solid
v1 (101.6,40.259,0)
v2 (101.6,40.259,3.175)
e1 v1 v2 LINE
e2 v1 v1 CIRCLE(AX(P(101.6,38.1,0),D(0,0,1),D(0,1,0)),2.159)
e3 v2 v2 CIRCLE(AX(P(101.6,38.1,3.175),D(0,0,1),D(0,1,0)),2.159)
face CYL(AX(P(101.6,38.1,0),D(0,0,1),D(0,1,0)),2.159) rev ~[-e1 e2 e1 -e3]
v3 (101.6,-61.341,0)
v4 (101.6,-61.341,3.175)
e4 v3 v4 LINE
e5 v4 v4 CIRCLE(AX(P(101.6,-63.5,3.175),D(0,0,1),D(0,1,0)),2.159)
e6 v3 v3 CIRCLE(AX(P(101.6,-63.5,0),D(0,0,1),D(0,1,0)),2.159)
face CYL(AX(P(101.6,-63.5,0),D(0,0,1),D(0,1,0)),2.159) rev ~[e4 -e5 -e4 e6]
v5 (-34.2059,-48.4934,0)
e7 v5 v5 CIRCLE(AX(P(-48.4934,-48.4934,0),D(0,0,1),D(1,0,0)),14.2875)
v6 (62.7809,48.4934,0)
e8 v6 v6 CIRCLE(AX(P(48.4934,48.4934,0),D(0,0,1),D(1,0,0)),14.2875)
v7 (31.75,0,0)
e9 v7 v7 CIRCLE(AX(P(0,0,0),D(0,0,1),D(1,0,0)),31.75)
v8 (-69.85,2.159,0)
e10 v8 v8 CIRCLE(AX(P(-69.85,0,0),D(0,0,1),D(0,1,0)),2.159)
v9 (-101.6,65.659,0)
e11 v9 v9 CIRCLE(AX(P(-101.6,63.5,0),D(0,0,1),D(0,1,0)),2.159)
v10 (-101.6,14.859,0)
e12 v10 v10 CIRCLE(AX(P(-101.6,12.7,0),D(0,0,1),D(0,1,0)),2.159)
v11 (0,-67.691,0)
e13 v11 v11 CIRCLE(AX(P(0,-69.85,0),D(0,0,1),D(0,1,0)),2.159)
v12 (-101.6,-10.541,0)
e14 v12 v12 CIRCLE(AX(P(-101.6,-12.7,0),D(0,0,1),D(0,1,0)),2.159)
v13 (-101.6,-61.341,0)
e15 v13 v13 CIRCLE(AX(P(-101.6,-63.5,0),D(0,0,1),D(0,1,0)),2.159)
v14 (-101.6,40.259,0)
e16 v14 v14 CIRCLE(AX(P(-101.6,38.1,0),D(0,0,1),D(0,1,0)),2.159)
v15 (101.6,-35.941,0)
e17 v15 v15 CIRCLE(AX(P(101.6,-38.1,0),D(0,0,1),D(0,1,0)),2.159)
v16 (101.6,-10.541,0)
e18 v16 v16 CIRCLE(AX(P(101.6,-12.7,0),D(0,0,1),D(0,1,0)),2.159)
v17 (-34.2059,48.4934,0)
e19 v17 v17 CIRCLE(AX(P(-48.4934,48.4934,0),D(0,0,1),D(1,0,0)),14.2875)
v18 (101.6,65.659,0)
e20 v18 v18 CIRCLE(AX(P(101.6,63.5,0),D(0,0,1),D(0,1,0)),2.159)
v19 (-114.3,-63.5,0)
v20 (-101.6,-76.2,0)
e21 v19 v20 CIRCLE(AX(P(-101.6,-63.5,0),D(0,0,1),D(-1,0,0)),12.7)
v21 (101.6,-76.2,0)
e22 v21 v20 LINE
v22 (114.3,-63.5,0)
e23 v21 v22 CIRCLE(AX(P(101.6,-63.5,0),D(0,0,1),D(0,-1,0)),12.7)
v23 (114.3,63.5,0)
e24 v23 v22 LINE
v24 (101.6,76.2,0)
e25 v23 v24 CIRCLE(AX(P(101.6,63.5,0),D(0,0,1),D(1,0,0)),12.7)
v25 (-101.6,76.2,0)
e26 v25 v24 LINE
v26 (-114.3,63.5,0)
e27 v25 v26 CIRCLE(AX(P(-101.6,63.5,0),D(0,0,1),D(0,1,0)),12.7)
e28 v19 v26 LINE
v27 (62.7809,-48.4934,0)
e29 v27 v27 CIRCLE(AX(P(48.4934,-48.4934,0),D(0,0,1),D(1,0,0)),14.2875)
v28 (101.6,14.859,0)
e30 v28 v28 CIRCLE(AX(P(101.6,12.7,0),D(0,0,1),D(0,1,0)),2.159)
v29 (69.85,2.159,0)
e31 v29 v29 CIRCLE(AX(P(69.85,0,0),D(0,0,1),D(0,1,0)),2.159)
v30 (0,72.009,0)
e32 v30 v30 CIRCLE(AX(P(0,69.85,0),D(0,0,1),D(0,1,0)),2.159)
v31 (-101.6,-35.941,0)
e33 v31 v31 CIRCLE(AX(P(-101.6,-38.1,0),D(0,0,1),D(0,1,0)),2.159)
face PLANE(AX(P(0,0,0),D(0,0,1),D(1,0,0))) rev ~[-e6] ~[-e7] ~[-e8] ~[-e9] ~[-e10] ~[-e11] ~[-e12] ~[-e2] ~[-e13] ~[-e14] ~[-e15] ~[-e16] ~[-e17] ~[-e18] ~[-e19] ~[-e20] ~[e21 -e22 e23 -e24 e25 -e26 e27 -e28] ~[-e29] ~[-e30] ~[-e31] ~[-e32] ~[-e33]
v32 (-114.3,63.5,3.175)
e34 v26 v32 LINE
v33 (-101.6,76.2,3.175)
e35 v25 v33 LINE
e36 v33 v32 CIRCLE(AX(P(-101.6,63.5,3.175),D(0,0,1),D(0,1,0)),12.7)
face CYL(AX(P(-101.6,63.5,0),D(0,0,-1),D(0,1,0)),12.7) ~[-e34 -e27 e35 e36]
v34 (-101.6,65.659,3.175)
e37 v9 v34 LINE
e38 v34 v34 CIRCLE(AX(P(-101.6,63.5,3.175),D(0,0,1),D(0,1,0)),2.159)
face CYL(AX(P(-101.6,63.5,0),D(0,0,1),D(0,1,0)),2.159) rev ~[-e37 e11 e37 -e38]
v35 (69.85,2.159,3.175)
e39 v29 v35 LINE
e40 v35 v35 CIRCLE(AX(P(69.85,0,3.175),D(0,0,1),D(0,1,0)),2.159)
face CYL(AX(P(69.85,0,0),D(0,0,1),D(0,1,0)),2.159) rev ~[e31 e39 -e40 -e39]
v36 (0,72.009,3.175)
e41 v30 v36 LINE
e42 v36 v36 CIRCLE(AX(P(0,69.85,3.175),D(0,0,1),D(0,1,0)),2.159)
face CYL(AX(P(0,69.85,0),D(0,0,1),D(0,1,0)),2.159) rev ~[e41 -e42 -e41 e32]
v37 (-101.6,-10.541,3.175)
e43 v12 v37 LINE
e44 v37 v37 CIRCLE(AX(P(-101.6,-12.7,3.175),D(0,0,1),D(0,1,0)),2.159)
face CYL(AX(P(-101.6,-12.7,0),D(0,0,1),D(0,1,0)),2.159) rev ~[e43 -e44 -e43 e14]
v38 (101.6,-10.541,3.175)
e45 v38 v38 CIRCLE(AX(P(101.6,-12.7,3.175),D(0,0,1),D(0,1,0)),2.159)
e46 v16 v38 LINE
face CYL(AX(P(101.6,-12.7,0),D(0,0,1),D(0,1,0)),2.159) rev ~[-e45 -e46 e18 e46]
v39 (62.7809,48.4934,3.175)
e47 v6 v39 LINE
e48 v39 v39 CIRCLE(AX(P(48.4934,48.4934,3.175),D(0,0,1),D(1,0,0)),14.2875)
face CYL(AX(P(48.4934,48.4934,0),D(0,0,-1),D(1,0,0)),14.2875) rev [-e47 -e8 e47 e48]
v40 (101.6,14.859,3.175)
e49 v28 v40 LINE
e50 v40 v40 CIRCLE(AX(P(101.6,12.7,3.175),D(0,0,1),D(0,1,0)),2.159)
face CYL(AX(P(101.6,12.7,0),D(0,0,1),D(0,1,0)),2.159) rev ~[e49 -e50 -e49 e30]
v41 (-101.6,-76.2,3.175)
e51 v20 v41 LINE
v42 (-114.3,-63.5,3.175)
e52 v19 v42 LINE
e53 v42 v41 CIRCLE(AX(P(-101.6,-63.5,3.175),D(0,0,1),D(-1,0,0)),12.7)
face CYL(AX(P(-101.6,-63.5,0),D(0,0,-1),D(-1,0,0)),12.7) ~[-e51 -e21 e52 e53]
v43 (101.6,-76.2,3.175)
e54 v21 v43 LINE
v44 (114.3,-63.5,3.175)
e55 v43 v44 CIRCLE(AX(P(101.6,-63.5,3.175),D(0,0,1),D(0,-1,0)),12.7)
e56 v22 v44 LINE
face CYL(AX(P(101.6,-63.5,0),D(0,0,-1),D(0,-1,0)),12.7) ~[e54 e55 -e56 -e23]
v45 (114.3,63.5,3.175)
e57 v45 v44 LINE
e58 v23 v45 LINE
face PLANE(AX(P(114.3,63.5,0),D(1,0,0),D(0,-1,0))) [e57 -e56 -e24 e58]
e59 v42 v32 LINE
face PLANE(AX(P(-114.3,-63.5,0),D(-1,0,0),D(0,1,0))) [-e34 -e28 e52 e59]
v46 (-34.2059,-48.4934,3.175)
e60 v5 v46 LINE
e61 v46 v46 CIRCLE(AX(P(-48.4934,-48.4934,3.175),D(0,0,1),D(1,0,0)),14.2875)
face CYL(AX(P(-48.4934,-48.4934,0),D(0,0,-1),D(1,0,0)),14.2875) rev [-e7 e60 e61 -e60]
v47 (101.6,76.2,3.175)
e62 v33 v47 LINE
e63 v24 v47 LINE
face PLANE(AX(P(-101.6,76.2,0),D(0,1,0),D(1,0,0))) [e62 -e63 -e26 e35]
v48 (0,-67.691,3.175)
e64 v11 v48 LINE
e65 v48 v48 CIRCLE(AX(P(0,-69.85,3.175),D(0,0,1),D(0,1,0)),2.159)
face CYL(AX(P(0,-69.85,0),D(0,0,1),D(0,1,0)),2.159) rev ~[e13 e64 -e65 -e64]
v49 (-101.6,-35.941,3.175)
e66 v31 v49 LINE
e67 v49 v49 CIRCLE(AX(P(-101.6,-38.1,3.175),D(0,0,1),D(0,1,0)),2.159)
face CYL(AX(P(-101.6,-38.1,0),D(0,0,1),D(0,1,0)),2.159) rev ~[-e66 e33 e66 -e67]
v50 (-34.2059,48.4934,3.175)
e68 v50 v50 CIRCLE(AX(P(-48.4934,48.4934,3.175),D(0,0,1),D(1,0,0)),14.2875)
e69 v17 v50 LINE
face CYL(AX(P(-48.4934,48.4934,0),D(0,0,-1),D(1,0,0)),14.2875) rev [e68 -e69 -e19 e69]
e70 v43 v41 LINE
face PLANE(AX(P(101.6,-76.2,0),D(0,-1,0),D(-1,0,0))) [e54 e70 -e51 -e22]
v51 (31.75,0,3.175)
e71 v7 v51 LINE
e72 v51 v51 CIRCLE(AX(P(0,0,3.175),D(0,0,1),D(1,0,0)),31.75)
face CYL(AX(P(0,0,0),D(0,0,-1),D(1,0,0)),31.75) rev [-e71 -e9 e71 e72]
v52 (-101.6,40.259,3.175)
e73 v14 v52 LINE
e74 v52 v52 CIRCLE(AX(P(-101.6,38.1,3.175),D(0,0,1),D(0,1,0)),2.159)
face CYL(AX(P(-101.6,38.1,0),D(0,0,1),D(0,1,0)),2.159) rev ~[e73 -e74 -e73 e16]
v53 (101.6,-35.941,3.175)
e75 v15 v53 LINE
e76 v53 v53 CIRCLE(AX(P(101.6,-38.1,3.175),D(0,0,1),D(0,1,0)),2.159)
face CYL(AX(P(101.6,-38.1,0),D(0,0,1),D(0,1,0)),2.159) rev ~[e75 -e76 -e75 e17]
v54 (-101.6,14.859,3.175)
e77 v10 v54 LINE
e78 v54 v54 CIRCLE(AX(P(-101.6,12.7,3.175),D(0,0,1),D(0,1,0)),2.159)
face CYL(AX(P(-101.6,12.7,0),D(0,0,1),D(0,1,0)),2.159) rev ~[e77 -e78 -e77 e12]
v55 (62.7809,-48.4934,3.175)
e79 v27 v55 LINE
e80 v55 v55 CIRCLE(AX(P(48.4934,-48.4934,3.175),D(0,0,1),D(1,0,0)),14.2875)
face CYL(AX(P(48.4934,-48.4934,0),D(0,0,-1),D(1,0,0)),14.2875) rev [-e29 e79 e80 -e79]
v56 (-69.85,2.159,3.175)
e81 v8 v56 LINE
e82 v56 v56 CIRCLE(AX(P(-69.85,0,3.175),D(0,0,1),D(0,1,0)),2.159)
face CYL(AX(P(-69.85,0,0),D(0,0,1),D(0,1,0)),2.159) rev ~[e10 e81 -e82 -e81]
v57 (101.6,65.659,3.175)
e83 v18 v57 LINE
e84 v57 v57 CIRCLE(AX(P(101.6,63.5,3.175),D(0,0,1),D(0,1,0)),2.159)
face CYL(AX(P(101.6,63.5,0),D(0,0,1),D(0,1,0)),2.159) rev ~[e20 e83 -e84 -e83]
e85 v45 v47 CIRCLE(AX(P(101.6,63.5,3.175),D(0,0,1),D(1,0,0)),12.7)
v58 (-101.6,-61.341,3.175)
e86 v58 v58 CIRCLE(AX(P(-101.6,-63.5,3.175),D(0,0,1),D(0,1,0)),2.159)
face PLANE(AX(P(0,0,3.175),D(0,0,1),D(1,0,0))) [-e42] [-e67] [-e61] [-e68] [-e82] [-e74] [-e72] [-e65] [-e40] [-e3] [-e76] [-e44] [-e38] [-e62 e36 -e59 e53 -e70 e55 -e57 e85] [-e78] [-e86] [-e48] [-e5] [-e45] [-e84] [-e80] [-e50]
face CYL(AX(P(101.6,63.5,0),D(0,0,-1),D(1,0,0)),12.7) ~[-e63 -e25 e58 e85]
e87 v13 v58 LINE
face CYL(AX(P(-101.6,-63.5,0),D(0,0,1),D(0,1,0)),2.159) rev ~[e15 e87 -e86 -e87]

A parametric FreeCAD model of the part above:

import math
import FreeCAD as App
import Part
import Sketcher

V = App.Vector
Q = App.Units.Quantity

doc = App.newDocument("Part")
body = doc.addObject("PartDesign::Body", "Body")

# Sketch on XY plane
sketch1 = body.newObject("Sketcher::SketchObject", "Sketch")
sketch1.AttachmentSupport = (doc.getObject("XY_Plane"), [""])
sketch1.MapMode = "FlatFace"
sketch1.addGeometry([
    Part.LineSegment(V(101.6, 76.2, 0), V(-101.6, 76.2, 0)),  # 0
    Part.ArcOfCircle(Part.Circle(V(-101.6, 63.5, 0), V(0, 0, 1), 12.7), math.radians(90), math.radians(180)),  # 1
    Part.LineSegment(V(-114.3, 63.5, 0), V(-114.3, -63.5, 0)),  # 2
    Part.ArcOfCircle(Part.Circle(V(-101.6, -63.5, 0), V(0, 0, 1), 12.7), math.radians(180), math.radians(270)),  # 3
    Part.LineSegment(V(-101.6, -76.2, 0), V(101.6, -76.2, 0)),  # 4
    Part.ArcOfCircle(Part.Circle(V(101.6, -63.5, 0), V(0, 0, 1), 12.7), math.radians(-90), math.radians(0)),  # 5
    Part.LineSegment(V(114.3, -63.5, 0), V(114.3, 63.5, 0)),  # 6
    Part.ArcOfCircle(Part.Circle(V(101.6, 63.5, 0), V(0, 0, 1), 12.7), math.radians(0), math.radians(90)),  # 7
    Part.Circle(V(-48.4934, -48.4934, 0), V(0, 0, 1), 14.2875),  # 8
    Part.Circle(V(48.4934, -48.4934, 0), V(0, 0, 1), 14.2875),  # 9
    Part.Circle(V(-48.4934, 48.4934, 0), V(0, 0, 1), 14.2875),  # 10
    Part.Circle(V(0, 0, 0), V(0, 0, 1), 31.75),  # 11
    Part.Circle(V(48.4934, 48.4934, 0), V(0, 0, 1), 14.2875),  # 12
], False)
sketch1.addConstraint([
    Sketcher.Constraint("Tangent", 0, 2, 1, 1),
    Sketcher.Constraint("Tangent", 1, 2, 2, 1),
    Sketcher.Constraint("Tangent", 2, 2, 3, 1),
    Sketcher.Constraint("Tangent", 3, 2, 4, 1),
    Sketcher.Constraint("Tangent", 4, 2, 5, 1),
    Sketcher.Constraint("Tangent", 5, 2, 6, 1),
    Sketcher.Constraint("Tangent", 6, 2, 7, 1),
    Sketcher.Constraint("Tangent", 7, 2, 0, 1),
    Sketcher.Constraint("Horizontal", 0),
    Sketcher.Constraint("Vertical", 2),
    Sketcher.Constraint("Horizontal", 4),
    Sketcher.Constraint("Vertical", 6),
    Sketcher.Constraint("Coincident", 11, 3, -1, 1),
    Sketcher.Constraint("Equal", 1, 3),
    Sketcher.Constraint("Equal", 3, 5),
    Sketcher.Constraint("Equal", 5, 7),
    Sketcher.Constraint("Equal", 8, 9),
    Sketcher.Constraint("Equal", 9, 10),
    Sketcher.Constraint("Equal", 10, 12),
    Sketcher.Constraint("Symmetric", 1, 3, 5, 3, -1, 1),
    Sketcher.Constraint("Symmetric", 9, 3, 10, 3, -1, 1),
    Sketcher.Constraint("Symmetric", 8, 3, 12, 3, -1, 1),
    Sketcher.Constraint("Symmetric", 8, 3, 9, 3, -2),
    Sketcher.Constraint("Diameter", 11, Q("2.5 in")),
    Sketcher.Constraint("Radius", 1, Q("0.5 in")),
    Sketcher.Constraint("Diameter", 8, Q("1.125 in")),
    Sketcher.Constraint("DistanceY", -1, 1, 1, 3, Q("2.5 in")),
    Sketcher.Constraint("DistanceX", 0, 2, 0, 1, Q("8 in")),
    Sketcher.Constraint("DistanceX", 8, 3, -1, 1, Q("1.9092 in")),
    Sketcher.Constraint("DistanceY", 8, 3, -1, 1, Q("1.9092 in")),
])
pad1 = body.newObject("PartDesign::Pad", "Pad")
pad1.Profile = sketch1
pad1.Length = Q("0.125 in")

# Sketch on XY plane
sketch2 = body.newObject("Sketcher::SketchObject", "Sketch001")
sketch2.AttachmentSupport = (doc.getObject("XY_Plane"), [""])
sketch2.MapMode = "FlatFace"
sketch2.addGeometry([
    Part.Circle(V(101.6, -38.1, 0), V(0, 0, 1), 2.159),  # 0
    Part.Circle(V(101.6, 38.1, 0), V(0, 0, 1), 2.159),  # 1
    Part.Circle(V(-101.6, 38.1, 0), V(0, 0, 1), 2.159),  # 2
    Part.Circle(V(-101.6, -38.1, 0), V(0, 0, 1), 2.159),  # 3
    Part.Circle(V(-101.6, 63.5, 0), V(0, 0, 1), 2.159),  # 4
    Part.Circle(V(-101.6, -63.5, 0), V(0, 0, 1), 2.159),  # 5
    Part.Circle(V(101.6, -63.5, 0), V(0, 0, 1), 2.159),  # 6
    Part.Circle(V(101.6, 63.5, 0), V(0, 0, 1), 2.159),  # 7
    Part.Circle(V(-101.6, 12.7, 0), V(0, 0, 1), 2.159),  # 8
    Part.Circle(V(-101.6, -12.7, 0), V(0, 0, 1), 2.159),  # 9
    Part.Circle(V(101.6, 12.7, 0), V(0, 0, 1), 2.159),  # 10
    Part.Circle(V(101.6, -12.7, 0), V(0, 0, 1), 2.159),  # 11
    Part.Circle(V(0, 69.85, 0), V(0, 0, 1), 2.159),  # 12
    Part.Circle(V(69.85, 0, 0), V(0, 0, 1), 2.159),  # 13
    Part.Circle(V(0, -69.85, 0), V(0, 0, 1), 2.159),  # 14
    Part.Circle(V(-69.85, 0, 0), V(0, 0, 1), 2.159),  # 15
    Part.Circle(V(17.9605, 17.9605, 0), V(0, 0, 1), 2.159),  # 16
    Part.Circle(V(-17.9605, 17.9605, 0), V(0, 0, 1), 2.159),  # 17
    Part.Circle(V(-17.9605, -17.9605, 0), V(0, 0, 1), 2.159),  # 18
    Part.Circle(V(17.9605, -17.9605, 0), V(0, 0, 1), 2.159),  # 19
], False)
sketch2.addConstraint([
    Sketcher.Constraint("Equal", 0, 1),
    Sketcher.Constraint("Equal", 1, 2),
    Sketcher.Constraint("Equal", 2, 3),
    Sketcher.Constraint("Equal", 3, 4),
    Sketcher.Constraint("Equal", 4, 5),
    Sketcher.Constraint("Equal", 5, 6),
    Sketcher.Constraint("Equal", 6, 7),
    Sketcher.Constraint("Equal", 7, 8),
    Sketcher.Constraint("Equal", 8, 9),
    Sketcher.Constraint("Equal", 9, 10),
    Sketcher.Constraint("Equal", 10, 11),
    Sketcher.Constraint("Equal", 11, 12),
    Sketcher.Constraint("Equal", 12, 13),
    Sketcher.Constraint("Equal", 13, 14),
    Sketcher.Constraint("Equal", 14, 15),
    Sketcher.Constraint("Equal", 15, 16),
    Sketcher.Constraint("Equal", 16, 17),
    Sketcher.Constraint("Equal", 17, 18),
    Sketcher.Constraint("Equal", 18, 19),
    Sketcher.Constraint("Symmetric", 0, 3, 2, 3, -1, 1),
    Sketcher.Constraint("Symmetric", 1, 3, 3, 3, -1, 1),
    Sketcher.Constraint("Symmetric", 4, 3, 6, 3, -1, 1),
    Sketcher.Constraint("Symmetric", 5, 3, 7, 3, -1, 1),
    Sketcher.Constraint("Symmetric", 9, 3, 10, 3, -1, 1),
    Sketcher.Constraint("Symmetric", 8, 3, 11, 3, -1, 1),
    Sketcher.Constraint("Symmetric", 12, 3, 14, 3, -1, 1),
    Sketcher.Constraint("Symmetric", 13, 3, 15, 3, -1, 1),
    Sketcher.Constraint("Symmetric", 16, 3, 18, 3, -1, 1),
    Sketcher.Constraint("Symmetric", 17, 3, 19, 3, -1, 1),
    Sketcher.Constraint("Symmetric", 1, 3, 2, 3, -2),
    Sketcher.Constraint("Symmetric", 5, 3, 6, 3, -2),
    Sketcher.Constraint("Symmetric", 8, 3, 10, 3, -2),
    Sketcher.Constraint("Symmetric", 16, 3, 17, 3, -2),
    Sketcher.Constraint("PointOnObject", 12, 3, -2),
    Sketcher.Constraint("PointOnObject", 13, 3, -1),
    Sketcher.Constraint("Vertical", 3, 3, 4, 3),
    Sketcher.Constraint("Vertical", 5, 3, 8, 3),
    Sketcher.Constraint("Diameter", 0, Q("0.17 in")),
    Sketcher.Constraint("DistanceX", -1, 1, 0, 3, Q("4 in")),
    Sketcher.Constraint("DistanceY", 0, 3, 1, 3, Q("3 in")),
    Sketcher.Constraint("DistanceY", 2, 3, 4, 3, Q("1 in")),
    Sketcher.Constraint("DistanceY", 8, 3, 2, 3, Q("1 in")),
    Sketcher.Constraint("DistanceY", -1, 1, 12, 3, Q("2.75 in")),
    Sketcher.Constraint("DistanceX", -1, 1, 13, 3, Q("2.75 in")),
    Sketcher.Constraint("DistanceX", -1, 1, 16, 3, Q("0.7071 in")),
    Sketcher.Constraint("DistanceY", -1, 1, 16, 3, Q("0.7071 in")),
])
doc.recompute()
hole = body.newObject("PartDesign::Hole", "Hole")
hole.Profile = sketch2
hole.ThreadType = "None"
hole.Diameter = Q("0.17 in")
hole.DepthType = "ThroughAll"
hole.Reversed = True

doc.recompute()
